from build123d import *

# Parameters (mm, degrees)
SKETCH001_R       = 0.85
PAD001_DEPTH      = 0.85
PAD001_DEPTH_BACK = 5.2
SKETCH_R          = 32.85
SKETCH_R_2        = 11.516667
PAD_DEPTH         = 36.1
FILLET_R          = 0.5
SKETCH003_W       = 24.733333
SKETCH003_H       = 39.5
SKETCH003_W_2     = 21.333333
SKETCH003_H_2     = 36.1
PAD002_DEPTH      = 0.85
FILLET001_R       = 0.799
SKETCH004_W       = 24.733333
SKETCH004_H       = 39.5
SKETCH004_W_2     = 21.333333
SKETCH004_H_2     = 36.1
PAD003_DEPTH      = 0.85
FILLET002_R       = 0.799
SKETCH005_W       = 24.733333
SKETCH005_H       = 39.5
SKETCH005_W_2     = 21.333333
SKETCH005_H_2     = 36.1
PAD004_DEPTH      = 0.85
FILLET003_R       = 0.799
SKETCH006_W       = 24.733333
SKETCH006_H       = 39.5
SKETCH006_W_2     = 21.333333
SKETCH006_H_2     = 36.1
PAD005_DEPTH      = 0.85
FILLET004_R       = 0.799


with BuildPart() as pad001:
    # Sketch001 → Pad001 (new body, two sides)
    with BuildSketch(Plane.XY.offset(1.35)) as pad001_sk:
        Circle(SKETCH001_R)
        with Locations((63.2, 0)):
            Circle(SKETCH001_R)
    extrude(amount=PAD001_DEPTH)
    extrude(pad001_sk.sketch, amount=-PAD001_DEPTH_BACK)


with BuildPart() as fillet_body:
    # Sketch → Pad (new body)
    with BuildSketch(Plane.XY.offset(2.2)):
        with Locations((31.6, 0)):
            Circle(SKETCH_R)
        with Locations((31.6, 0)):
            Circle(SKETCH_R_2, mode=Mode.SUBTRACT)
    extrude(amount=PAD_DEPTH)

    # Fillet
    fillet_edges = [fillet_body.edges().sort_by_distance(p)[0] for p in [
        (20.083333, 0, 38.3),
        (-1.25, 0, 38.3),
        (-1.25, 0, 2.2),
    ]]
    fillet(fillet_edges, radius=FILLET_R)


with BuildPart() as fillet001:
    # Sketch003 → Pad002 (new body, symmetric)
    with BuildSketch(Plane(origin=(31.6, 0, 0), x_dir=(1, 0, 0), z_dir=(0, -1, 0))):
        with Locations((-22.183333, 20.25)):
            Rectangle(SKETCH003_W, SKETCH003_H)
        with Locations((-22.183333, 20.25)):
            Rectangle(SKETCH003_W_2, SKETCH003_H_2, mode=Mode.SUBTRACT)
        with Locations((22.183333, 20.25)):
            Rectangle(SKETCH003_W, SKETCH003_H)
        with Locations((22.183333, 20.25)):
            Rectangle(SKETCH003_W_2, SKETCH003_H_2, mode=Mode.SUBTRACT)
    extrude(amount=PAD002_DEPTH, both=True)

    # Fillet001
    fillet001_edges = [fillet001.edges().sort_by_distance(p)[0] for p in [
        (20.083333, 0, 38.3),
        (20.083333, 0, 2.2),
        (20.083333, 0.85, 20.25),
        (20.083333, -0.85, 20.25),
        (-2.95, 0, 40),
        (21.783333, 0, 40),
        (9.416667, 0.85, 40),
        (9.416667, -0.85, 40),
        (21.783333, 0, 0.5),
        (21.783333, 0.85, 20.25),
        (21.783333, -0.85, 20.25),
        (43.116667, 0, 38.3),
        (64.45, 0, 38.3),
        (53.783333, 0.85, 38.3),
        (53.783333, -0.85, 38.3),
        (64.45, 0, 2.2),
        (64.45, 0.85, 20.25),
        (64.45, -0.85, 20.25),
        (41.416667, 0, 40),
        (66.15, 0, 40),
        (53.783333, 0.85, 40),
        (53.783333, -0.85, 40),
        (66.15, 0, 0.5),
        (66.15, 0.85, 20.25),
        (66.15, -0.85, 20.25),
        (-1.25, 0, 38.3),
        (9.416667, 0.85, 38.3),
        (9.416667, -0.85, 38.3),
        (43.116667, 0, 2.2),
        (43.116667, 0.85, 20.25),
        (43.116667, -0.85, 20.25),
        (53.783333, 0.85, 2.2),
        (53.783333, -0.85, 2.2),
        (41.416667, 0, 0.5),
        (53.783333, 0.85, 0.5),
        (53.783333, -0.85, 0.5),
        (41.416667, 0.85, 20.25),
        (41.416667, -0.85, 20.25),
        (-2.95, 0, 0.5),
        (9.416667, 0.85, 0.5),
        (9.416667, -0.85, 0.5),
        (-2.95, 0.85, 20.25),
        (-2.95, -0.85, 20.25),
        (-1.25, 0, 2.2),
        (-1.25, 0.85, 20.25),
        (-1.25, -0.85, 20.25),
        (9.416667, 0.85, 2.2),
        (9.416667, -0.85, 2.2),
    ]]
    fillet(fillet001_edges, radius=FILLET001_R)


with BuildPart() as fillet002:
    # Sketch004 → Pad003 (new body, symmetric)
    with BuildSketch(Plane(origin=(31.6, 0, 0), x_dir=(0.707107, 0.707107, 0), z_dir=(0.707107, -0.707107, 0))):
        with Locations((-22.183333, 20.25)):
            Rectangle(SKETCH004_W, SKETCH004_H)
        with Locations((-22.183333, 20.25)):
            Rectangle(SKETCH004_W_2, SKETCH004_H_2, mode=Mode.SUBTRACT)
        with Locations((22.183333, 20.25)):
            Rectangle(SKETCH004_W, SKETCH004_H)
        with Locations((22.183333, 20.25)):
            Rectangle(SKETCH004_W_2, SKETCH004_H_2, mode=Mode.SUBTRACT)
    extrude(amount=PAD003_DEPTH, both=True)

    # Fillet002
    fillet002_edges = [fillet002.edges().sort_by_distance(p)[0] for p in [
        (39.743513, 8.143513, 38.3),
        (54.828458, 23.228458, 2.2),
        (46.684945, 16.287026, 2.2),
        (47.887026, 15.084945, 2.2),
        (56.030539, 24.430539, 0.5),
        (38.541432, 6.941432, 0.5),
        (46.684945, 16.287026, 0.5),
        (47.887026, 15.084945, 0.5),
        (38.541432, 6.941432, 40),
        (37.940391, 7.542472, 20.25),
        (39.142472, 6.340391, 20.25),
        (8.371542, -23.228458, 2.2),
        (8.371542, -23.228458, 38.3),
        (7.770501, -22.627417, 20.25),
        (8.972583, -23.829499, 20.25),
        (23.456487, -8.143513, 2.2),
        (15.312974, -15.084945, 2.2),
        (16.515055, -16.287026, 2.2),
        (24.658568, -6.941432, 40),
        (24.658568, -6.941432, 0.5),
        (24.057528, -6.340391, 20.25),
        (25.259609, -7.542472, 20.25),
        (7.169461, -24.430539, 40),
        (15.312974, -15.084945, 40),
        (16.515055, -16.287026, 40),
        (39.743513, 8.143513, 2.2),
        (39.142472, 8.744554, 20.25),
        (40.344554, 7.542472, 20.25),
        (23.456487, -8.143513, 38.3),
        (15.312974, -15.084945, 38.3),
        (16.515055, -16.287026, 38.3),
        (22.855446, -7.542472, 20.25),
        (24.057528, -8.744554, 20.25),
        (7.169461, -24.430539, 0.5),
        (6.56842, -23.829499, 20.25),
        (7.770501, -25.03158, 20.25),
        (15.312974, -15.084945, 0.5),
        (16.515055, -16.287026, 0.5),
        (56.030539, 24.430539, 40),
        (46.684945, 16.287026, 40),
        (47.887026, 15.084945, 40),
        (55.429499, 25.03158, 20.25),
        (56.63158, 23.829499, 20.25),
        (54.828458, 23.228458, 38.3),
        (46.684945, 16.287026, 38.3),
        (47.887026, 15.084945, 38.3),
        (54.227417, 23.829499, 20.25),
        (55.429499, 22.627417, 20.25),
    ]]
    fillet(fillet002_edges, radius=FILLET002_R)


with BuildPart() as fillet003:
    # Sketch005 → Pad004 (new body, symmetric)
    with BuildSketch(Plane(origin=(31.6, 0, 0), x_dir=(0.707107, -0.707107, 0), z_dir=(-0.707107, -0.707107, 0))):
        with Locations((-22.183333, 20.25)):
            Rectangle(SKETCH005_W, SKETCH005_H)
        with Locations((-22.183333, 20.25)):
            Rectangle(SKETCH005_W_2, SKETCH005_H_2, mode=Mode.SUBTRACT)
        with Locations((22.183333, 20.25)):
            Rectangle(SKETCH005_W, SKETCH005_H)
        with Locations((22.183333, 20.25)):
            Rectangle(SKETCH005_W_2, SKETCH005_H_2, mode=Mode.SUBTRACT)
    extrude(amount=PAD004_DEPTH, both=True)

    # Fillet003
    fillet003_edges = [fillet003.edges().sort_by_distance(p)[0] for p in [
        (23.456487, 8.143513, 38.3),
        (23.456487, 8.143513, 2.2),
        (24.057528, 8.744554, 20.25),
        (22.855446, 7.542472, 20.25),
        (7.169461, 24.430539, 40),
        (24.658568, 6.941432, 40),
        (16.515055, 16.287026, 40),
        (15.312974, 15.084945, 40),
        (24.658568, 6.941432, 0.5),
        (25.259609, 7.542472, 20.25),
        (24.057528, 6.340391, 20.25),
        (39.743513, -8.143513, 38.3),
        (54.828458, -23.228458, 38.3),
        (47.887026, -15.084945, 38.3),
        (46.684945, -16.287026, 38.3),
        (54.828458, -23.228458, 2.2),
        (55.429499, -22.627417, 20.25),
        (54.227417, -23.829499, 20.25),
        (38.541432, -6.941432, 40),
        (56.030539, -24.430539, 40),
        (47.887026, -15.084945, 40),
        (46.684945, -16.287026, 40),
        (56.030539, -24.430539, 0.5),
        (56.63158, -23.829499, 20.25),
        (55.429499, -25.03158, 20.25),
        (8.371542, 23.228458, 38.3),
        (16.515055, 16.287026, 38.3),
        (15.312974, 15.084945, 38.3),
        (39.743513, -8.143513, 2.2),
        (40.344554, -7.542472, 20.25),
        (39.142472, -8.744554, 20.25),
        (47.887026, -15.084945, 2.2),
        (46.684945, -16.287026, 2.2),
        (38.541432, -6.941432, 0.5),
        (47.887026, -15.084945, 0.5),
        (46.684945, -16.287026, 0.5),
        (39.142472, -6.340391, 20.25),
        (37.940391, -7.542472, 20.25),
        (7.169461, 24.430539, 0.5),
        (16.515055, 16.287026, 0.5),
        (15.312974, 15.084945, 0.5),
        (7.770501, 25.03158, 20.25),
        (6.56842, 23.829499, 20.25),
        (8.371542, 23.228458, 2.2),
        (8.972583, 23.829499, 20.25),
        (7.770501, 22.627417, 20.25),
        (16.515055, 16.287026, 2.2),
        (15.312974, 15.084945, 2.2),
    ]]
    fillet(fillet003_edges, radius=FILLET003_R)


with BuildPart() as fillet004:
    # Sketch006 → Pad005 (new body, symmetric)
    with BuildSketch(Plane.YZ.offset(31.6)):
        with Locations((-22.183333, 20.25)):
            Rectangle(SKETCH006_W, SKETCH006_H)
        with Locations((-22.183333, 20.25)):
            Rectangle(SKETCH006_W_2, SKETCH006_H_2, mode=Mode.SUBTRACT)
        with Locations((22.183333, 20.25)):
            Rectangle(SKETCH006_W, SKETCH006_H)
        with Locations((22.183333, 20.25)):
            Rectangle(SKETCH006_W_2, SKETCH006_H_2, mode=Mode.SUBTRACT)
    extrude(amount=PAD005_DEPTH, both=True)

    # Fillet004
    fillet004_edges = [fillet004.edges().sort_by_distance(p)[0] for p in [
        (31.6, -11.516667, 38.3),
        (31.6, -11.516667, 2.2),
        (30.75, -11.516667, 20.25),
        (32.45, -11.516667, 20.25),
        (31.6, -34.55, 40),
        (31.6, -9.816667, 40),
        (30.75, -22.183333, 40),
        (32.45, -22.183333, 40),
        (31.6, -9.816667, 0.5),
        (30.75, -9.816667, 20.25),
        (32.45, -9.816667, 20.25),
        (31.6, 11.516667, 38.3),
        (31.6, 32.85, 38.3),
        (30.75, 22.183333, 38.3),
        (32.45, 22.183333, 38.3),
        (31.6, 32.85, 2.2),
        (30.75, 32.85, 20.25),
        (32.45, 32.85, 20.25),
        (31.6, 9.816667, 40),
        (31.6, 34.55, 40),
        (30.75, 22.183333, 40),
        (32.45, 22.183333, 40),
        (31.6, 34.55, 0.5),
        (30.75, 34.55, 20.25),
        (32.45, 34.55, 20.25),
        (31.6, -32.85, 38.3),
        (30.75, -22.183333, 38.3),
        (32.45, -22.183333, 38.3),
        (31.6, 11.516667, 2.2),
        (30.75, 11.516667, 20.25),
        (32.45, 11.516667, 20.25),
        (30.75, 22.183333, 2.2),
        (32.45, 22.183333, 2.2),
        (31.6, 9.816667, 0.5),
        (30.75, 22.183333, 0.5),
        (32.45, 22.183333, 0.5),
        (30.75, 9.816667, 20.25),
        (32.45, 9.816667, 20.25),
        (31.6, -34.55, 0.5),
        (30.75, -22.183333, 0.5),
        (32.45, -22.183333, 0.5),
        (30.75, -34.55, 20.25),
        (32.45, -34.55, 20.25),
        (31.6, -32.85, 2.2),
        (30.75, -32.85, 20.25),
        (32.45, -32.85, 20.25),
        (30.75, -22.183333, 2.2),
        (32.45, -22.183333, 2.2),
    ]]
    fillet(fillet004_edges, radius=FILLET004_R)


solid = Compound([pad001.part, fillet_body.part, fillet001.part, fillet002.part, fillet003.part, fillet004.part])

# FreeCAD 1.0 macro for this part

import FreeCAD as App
import Part
import Sketcher
from FreeCAD import Vector
Q = App.Units.Quantity


def edges_at(feature, points):
    """Names of the edges that pass closest to the given points."""
    edges = feature.Shape.Edges
    near = lambda p: min(range(len(edges)), key=lambda i: edges[i].distToShape(Part.Vertex(*p))[0])
    return sorted({f"Edge{near(p) + 1}" for p in points})

doc = App.newDocument("Part")
params = doc.addObject("Spreadsheet::Sheet", "Params")
for row, (alias, value) in enumerate([
    ("sketch1_diameter", "1.7 mm"),
    ("pad1_length", "0.85 mm"),
    ("pad1_length2", "5.2 mm"),
    ("sketch2_diameter", "65.7 mm"),
    ("pad2_length", "36.1 mm"),
    ("fillet_radius", "0.5 mm"),
    ("sketch3_height", "39.5 mm"),
    ("sketch3_height2", "36.1 mm"),
    ("pad3_length", "1.7 mm"),
    ("fillet2_radius", "0.799 mm"),
    ("sketch4_height", "39.5 mm"),
    ("sketch4_height2", "36.1 mm"),
    ("pad4_length", "1.7 mm"),
    ("fillet3_radius", "0.799 mm"),
    ("sketch5_height", "39.5 mm"),
    ("sketch5_height2", "36.1 mm"),
    ("pad5_length", "1.7 mm"),
    ("fillet4_radius", "0.799 mm"),
    ("sketch6_height", "39.5 mm"),
    ("sketch6_height2", "36.1 mm"),
    ("pad6_length", "1.7 mm"),
    ("fillet5_radius", "0.799 mm"),
], start=1):
    params.set(f"A{row}", alias)
    params.set(f"B{row}", "=" + value)
    params.setAlias(f"B{row}", alias)

body = doc.addObject("PartDesign::Body", "Body")
body.AllowCompound = True

# Sketch on XY plane
sketch1 = body.newObject("Sketcher::SketchObject", "Sketch")
sketch1.AttachmentSupport = (doc.getObject("XY_Plane"), [""])
sketch1.MapMode = "FlatFace"
sketch1.AttachmentOffset = App.Placement(Vector(0, 0, 1.35), App.Rotation())
sketch1.addGeometry(Part.Circle(Vector(0, 0, 0), Vector(0, 0, 1), 0.8), False)
sketch1.addGeometry(Part.Circle(Vector(63.2, 0, 0), Vector(0, 0, 1), 0.8), False)
sketch1.addConstraint(Sketcher.Constraint("Coincident", 0, 3, -1, 1))
sketch1.addConstraint(Sketcher.Constraint("Equal", 0, 1))
sketch1.addConstraint(Sketcher.Constraint("PointOnObject", 1, 3, -1))
sketch1.addConstraint(Sketcher.Constraint("Diameter", 0, Q("1.7 mm")))
sketch1.addConstraint(Sketcher.Constraint("DistanceX", -1, 1, 1, 3, Q("63.2 mm")))
sketch1.setExpression("Constraints[3]", "Params.sketch1_diameter")
pad1 = body.newObject("PartDesign::Pad", "Pad")
pad1.Profile = sketch1
pad1.Type = "TwoLengths"
pad1.setExpression("Length", "Params.pad1_length")
pad1.setExpression("Length2", "Params.pad1_length2")
body2 = doc.addObject("PartDesign::Body", "Body001")

# Sketch on XY plane
sketch2 = body2.newObject("Sketcher::SketchObject", "Sketch001")
sketch2.AttachmentSupport = (doc.getObject("XY_Plane001"), [""])
sketch2.MapMode = "FlatFace"
sketch2.AttachmentOffset = App.Placement(Vector(0, 0, 2.2), App.Rotation())
sketch2.addGeometry(Part.Circle(Vector(32, 0, 0), Vector(0, 0, 1), 33), False)
sketch2.addGeometry(Part.Circle(Vector(32, 0, 0), Vector(0, 0, 1), 12), False)
sketch2.addConstraint(Sketcher.Constraint("Coincident", 1, 3, 0, 3))
sketch2.addConstraint(Sketcher.Constraint("PointOnObject", 0, 3, -1))
sketch2.addConstraint(Sketcher.Constraint("Diameter", 0, Q("65.7 mm")))
sketch2.addConstraint(Sketcher.Constraint("DistanceX", -1, 1, 0, 3, Q("31.6 mm")))
sketch2.addConstraint(Sketcher.Constraint("Diameter", 1, Q("23.033334 mm")))
sketch2.setExpression("Constraints[2]", "Params.sketch2_diameter")
pad2 = body2.newObject("PartDesign::Pad", "Pad001")
pad2.Profile = sketch2
pad2.setExpression("Length", "Params.pad2_length")
doc.recompute()

fillet = body2.newObject("PartDesign::Fillet", "Fillet")
fillet.Base = (pad2, edges_at(pad2, [(20.083, 0, 38.3), (-1.25, 0, 38.3), (-1.25, 0, 2.2)]))
fillet.setExpression("Radius", "Params.fillet_radius")
body3 = doc.addObject("PartDesign::Body", "Body002")
body3.AllowCompound = True

# Sketch on XZ plane
sketch3 = body3.newObject("Sketcher::SketchObject", "Sketch002")
sketch3.AttachmentSupport = (doc.getObject("XZ_Plane002"), [""])
sketch3.MapMode = "FlatFace"
sketch3.addGeometry(Part.LineSegment(Vector(-3, 40, 0), Vector(-3, 0, 0)), False)
sketch3.addGeometry(Part.LineSegment(Vector(-3, 0, 0), Vector(22, 0, 0)), False)
sketch3.addGeometry(Part.LineSegment(Vector(22, 0, 0), Vector(22, 40, 0)), False)
sketch3.addGeometry(Part.LineSegment(Vector(22, 40, 0), Vector(-3, 40, 0)), False)
sketch3.addGeometry(Part.LineSegment(Vector(20, 2, 0), Vector(-1, 2, 0)), False)
sketch3.addGeometry(Part.LineSegment(Vector(-1, 2, 0), Vector(-1, 38, 0)), False)
sketch3.addGeometry(Part.LineSegment(Vector(-1, 38, 0), Vector(20, 38, 0)), False)
sketch3.addGeometry(Part.LineSegment(Vector(20, 38, 0), Vector(20, 2, 0)), False)
sketch3.addGeometry(Part.LineSegment(Vector(41, 40, 0), Vector(41, 0, 0)), False)
sketch3.addGeometry(Part.LineSegment(Vector(41, 0, 0), Vector(66, 0, 0)), False)
sketch3.addGeometry(Part.LineSegment(Vector(66, 0, 0), Vector(66, 40, 0)), False)
sketch3.addGeometry(Part.LineSegment(Vector(66, 40, 0), Vector(41, 40, 0)), False)
sketch3.addGeometry(Part.LineSegment(Vector(64, 2, 0), Vector(43, 2, 0)), False)
sketch3.addGeometry(Part.LineSegment(Vector(43, 2, 0), Vector(43, 38, 0)), False)
sketch3.addGeometry(Part.LineSegment(Vector(43, 38, 0), Vector(64, 38, 0)), False)
sketch3.addGeometry(Part.LineSegment(Vector(64, 38, 0), Vector(64, 2, 0)), False)
sketch3.addConstraint(Sketcher.Constraint("Coincident", 0, 2, 1, 1))
sketch3.addConstraint(Sketcher.Constraint("Coincident", 1, 2, 2, 1))
sketch3.addConstraint(Sketcher.Constraint("Coincident", 2, 2, 3, 1))
sketch3.addConstraint(Sketcher.Constraint("Coincident", 3, 2, 0, 1))
sketch3.addConstraint(Sketcher.Constraint("Coincident", 4, 2, 5, 1))
sketch3.addConstraint(Sketcher.Constraint("Coincident", 5, 2, 6, 1))
sketch3.addConstraint(Sketcher.Constraint("Coincident", 6, 2, 7, 1))
sketch3.addConstraint(Sketcher.Constraint("Coincident", 7, 2, 4, 1))
sketch3.addConstraint(Sketcher.Constraint("Coincident", 8, 2, 9, 1))
sketch3.addConstraint(Sketcher.Constraint("Coincident", 9, 2, 10, 1))
sketch3.addConstraint(Sketcher.Constraint("Coincident", 10, 2, 11, 1))
sketch3.addConstraint(Sketcher.Constraint("Coincident", 11, 2, 8, 1))
sketch3.addConstraint(Sketcher.Constraint("Coincident", 12, 2, 13, 1))
sketch3.addConstraint(Sketcher.Constraint("Coincident", 13, 2, 14, 1))
sketch3.addConstraint(Sketcher.Constraint("Coincident", 14, 2, 15, 1))
sketch3.addConstraint(Sketcher.Constraint("Coincident", 15, 2, 12, 1))
sketch3.addConstraint(Sketcher.Constraint("Vertical", 0))
sketch3.addConstraint(Sketcher.Constraint("Horizontal", 1))
sketch3.addConstraint(Sketcher.Constraint("Vertical", 2))
sketch3.addConstraint(Sketcher.Constraint("Horizontal", 3))
sketch3.addConstraint(Sketcher.Constraint("Horizontal", 4))
sketch3.addConstraint(Sketcher.Constraint("Vertical", 5))
sketch3.addConstraint(Sketcher.Constraint("Horizontal", 6))
sketch3.addConstraint(Sketcher.Constraint("Vertical", 7))
sketch3.addConstraint(Sketcher.Constraint("Vertical", 8))
sketch3.addConstraint(Sketcher.Constraint("Horizontal", 9))
sketch3.addConstraint(Sketcher.Constraint("Vertical", 10))
sketch3.addConstraint(Sketcher.Constraint("Horizontal", 11))
sketch3.addConstraint(Sketcher.Constraint("Horizontal", 12))
sketch3.addConstraint(Sketcher.Constraint("Vertical", 13))
sketch3.addConstraint(Sketcher.Constraint("Horizontal", 14))
sketch3.addConstraint(Sketcher.Constraint("Vertical", 15))
sketch3.addConstraint(Sketcher.Constraint("Horizontal", 1, 2, 8, 2))
sketch3.addConstraint(Sketcher.Constraint("Horizontal", 3, 2, 10, 2))
sketch3.addConstraint(Sketcher.Constraint("Horizontal", 7, 2, 12, 2))
sketch3.addConstraint(Sketcher.Constraint("Horizontal", 6, 2, 13, 2))
sketch3.addConstraint(Sketcher.Constraint("Equal", 3, 9))
sketch3.addConstraint(Sketcher.Constraint("Equal", 6, 12))
sketch3.addConstraint(Sketcher.Constraint("DistanceY", 0, 2, 0, 1, Q("39.5 mm")))
sketch3.addConstraint(Sketcher.Constraint("DistanceY", 5, 1, 5, 2, Q("36.1 mm")))
sketch3.addConstraint(Sketcher.Constraint("DistanceY", -1, 1, 2, 2, Q("40 mm")))
sketch3.addConstraint(Sketcher.Constraint("DistanceY", -1, 1, 4, 2, Q("2.2 mm")))
sketch3.addConstraint(Sketcher.Constraint("DistanceX", 0, 2, 4, 2, Q("1.7 mm")))
sketch3.addConstraint(Sketcher.Constraint("DistanceX", 6, 2, 2, 2, Q("1.7 mm")))
sketch3.addConstraint(Sketcher.Constraint("DistanceX", 8, 2, 12, 2, Q("1.7 mm")))
sketch3.addConstraint(Sketcher.Constraint("DistanceX", 0, 2, -1, 1, Q("2.95 mm")))
sketch3.addConstraint(Sketcher.Constraint("DistanceX", -1, 1, 9, 2, Q("66.15 mm")))
sketch3.addConstraint(Sketcher.Constraint("DistanceX", 1, 1, 1, 2, Q("24.733333 mm")))
sketch3.setExpression("Constraints[38]", "Params.sketch3_height")
sketch3.setExpression("Constraints[39]", "Params.sketch3_height2")
pad3 = body3.newObject("PartDesign::Pad", "Pad002")
pad3.Profile = sketch3
pad3.setExpression("Length", "Params.pad3_length")
pad3.Midplane = True
doc.recompute()

fillet2 = body3.newObject("PartDesign::Fillet", "Fillet001")
fillet2.Base = (pad3, ["Edge1"])
fillet2.UseAllEdges = True
fillet2.setExpression("Radius", "Params.fillet2_radius")
body4 = doc.addObject("PartDesign::Body", "Body003")
body4.AllowCompound = True

# Sketch on an angled plane
sketch4 = body4.newObject("Sketcher::SketchObject", "Sketch003")
sketch4.Placement = App.Placement(Vector(31.6, 0, 0), App.Rotation(Vector(0.707106781, 0.707106781, 0), Vector(0, 0, 0.999999999), Vector(0.707106781, -0.707106781, 0), "ZXY"))
sketch4.addGeometry(Part.LineSegment(Vector(-35, 40, 0), Vector(-35, 0, 0)), False)
sketch4.addGeometry(Part.LineSegment(Vector(-35, 0, 0), Vector(-10, 0, 0)), False)
sketch4.addGeometry(Part.LineSegment(Vector(-10, 0, 0), Vector(-10, 40, 0)), False)
sketch4.addGeometry(Part.LineSegment(Vector(-10, 40, 0), Vector(-35, 40, 0)), False)
sketch4.addGeometry(Part.LineSegment(Vector(-12, 2, 0), Vector(-33, 2, 0)), False)
sketch4.addGeometry(Part.LineSegment(Vector(-33, 2, 0), Vector(-33, 38, 0)), False)
sketch4.addGeometry(Part.LineSegment(Vector(-33, 38, 0), Vector(-12, 38, 0)), False)
sketch4.addGeometry(Part.LineSegment(Vector(-12, 38, 0), Vector(-12, 2, 0)), False)
sketch4.addGeometry(Part.LineSegment(Vector(10, 40, 0), Vector(10, 0, 0)), False)
sketch4.addGeometry(Part.LineSegment(Vector(10, 0, 0), Vector(35, 0, 0)), False)
sketch4.addGeometry(Part.LineSegment(Vector(35, 0, 0), Vector(35, 40, 0)), False)
sketch4.addGeometry(Part.LineSegment(Vector(35, 40, 0), Vector(10, 40, 0)), False)
sketch4.addGeometry(Part.LineSegment(Vector(33, 2, 0), Vector(12, 2, 0)), False)
sketch4.addGeometry(Part.LineSegment(Vector(12, 2, 0), Vector(12, 38, 0)), False)
sketch4.addGeometry(Part.LineSegment(Vector(12, 38, 0), Vector(33, 38, 0)), False)
sketch4.addGeometry(Part.LineSegment(Vector(33, 38, 0), Vector(33, 2, 0)), False)
sketch4.addConstraint(Sketcher.Constraint("Coincident", 0, 2, 1, 1))
sketch4.addConstraint(Sketcher.Constraint("Coincident", 1, 2, 2, 1))
sketch4.addConstraint(Sketcher.Constraint("Coincident", 2, 2, 3, 1))
sketch4.addConstraint(Sketcher.Constraint("Coincident", 3, 2, 0, 1))
sketch4.addConstraint(Sketcher.Constraint("Coincident", 4, 2, 5, 1))
sketch4.addConstraint(Sketcher.Constraint("Coincident", 5, 2, 6, 1))
sketch4.addConstraint(Sketcher.Constraint("Coincident", 6, 2, 7, 1))
sketch4.addConstraint(Sketcher.Constraint("Coincident", 7, 2, 4, 1))
sketch4.addConstraint(Sketcher.Constraint("Coincident", 8, 2, 9, 1))
sketch4.addConstraint(Sketcher.Constraint("Coincident", 9, 2, 10, 1))
sketch4.addConstraint(Sketcher.Constraint("Coincident", 10, 2, 11, 1))
sketch4.addConstraint(Sketcher.Constraint("Coincident", 11, 2, 8, 1))
sketch4.addConstraint(Sketcher.Constraint("Coincident", 12, 2, 13, 1))
sketch4.addConstraint(Sketcher.Constraint("Coincident", 13, 2, 14, 1))
sketch4.addConstraint(Sketcher.Constraint("Coincident", 14, 2, 15, 1))
sketch4.addConstraint(Sketcher.Constraint("Coincident", 15, 2, 12, 1))
sketch4.addConstraint(Sketcher.Constraint("Vertical", 0))
sketch4.addConstraint(Sketcher.Constraint("Horizontal", 1))
sketch4.addConstraint(Sketcher.Constraint("Vertical", 2))
sketch4.addConstraint(Sketcher.Constraint("Horizontal", 3))
sketch4.addConstraint(Sketcher.Constraint("Horizontal", 4))
sketch4.addConstraint(Sketcher.Constraint("Vertical", 5))
sketch4.addConstraint(Sketcher.Constraint("Horizontal", 6))
sketch4.addConstraint(Sketcher.Constraint("Vertical", 7))
sketch4.addConstraint(Sketcher.Constraint("Vertical", 8))
sketch4.addConstraint(Sketcher.Constraint("Horizontal", 9))
sketch4.addConstraint(Sketcher.Constraint("Vertical", 10))
sketch4.addConstraint(Sketcher.Constraint("Horizontal", 11))
sketch4.addConstraint(Sketcher.Constraint("Horizontal", 12))
sketch4.addConstraint(Sketcher.Constraint("Vertical", 13))
sketch4.addConstraint(Sketcher.Constraint("Horizontal", 14))
sketch4.addConstraint(Sketcher.Constraint("Vertical", 15))
sketch4.addConstraint(Sketcher.Constraint("Symmetric", 1, 2, 8, 2, -2))
sketch4.addConstraint(Sketcher.Constraint("Symmetric", 3, 2, 10, 2, -2))
sketch4.addConstraint(Sketcher.Constraint("Symmetric", 7, 2, 12, 2, -2))
sketch4.addConstraint(Sketcher.Constraint("Symmetric", 5, 2, 14, 2, -2))
sketch4.addConstraint(Sketcher.Constraint("DistanceY", 0, 2, 0, 1, Q("39.5 mm")))
sketch4.addConstraint(Sketcher.Constraint("DistanceY", 5, 1, 5, 2, Q("36.1 mm")))
sketch4.addConstraint(Sketcher.Constraint("DistanceY", -1, 1, 2, 2, Q("40 mm")))
sketch4.addConstraint(Sketcher.Constraint("DistanceY", -1, 1, 4, 2, Q("2.2 mm")))
sketch4.addConstraint(Sketcher.Constraint("DistanceX", 0, 2, 4, 2, Q("1.7 mm")))
sketch4.addConstraint(Sketcher.Constraint("DistanceX", 6, 2, 2, 2, Q("1.7 mm")))
sketch4.addConstraint(Sketcher.Constraint("DistanceX", 0, 2, -1, 1, Q("34.549999 mm")))
sketch4.addConstraint(Sketcher.Constraint("DistanceX", 1, 1, 1, 2, Q("24.733333 mm")))
sketch4.setExpression("Constraints[36]", "Params.sketch4_height")
sketch4.setExpression("Constraints[37]", "Params.sketch4_height2")
pad4 = body4.newObject("PartDesign::Pad", "Pad003")
pad4.Profile = sketch4
pad4.setExpression("Length", "Params.pad4_length")
pad4.Midplane = True
doc.recompute()

fillet3 = body4.newObject("PartDesign::Fillet", "Fillet002")
fillet3.Base = (pad4, ["Edge1"])
fillet3.UseAllEdges = True
fillet3.setExpression("Radius", "Params.fillet3_radius")
body5 = doc.addObject("PartDesign::Body", "Body004")
body5.AllowCompound = True

# Sketch on an angled plane
sketch5 = body5.newObject("Sketcher::SketchObject", "Sketch004")
sketch5.Placement = App.Placement(Vector(31.6, 0, 0), App.Rotation(Vector(0.707106781, -0.707106781, 0), Vector(0, 0, 0.999999999), Vector(-0.707106781, -0.707106781, 0), "ZXY"))
sketch5.addGeometry(Part.LineSegment(Vector(-35, 40, 0), Vector(-35, 0, 0)), False)
sketch5.addGeometry(Part.LineSegment(Vector(-35, 0, 0), Vector(-10, 0, 0)), False)
sketch5.addGeometry(Part.LineSegment(Vector(-10, 0, 0), Vector(-10, 40, 0)), False)
sketch5.addGeometry(Part.LineSegment(Vector(-10, 40, 0), Vector(-35, 40, 0)), False)
sketch5.addGeometry(Part.LineSegment(Vector(-12, 2, 0), Vector(-33, 2, 0)), False)
sketch5.addGeometry(Part.LineSegment(Vector(-33, 2, 0), Vector(-33, 38, 0)), False)
sketch5.addGeometry(Part.LineSegment(Vector(-33, 38, 0), Vector(-12, 38, 0)), False)
sketch5.addGeometry(Part.LineSegment(Vector(-12, 38, 0), Vector(-12, 2, 0)), False)
sketch5.addGeometry(Part.LineSegment(Vector(10, 40, 0), Vector(10, 0, 0)), False)
sketch5.addGeometry(Part.LineSegment(Vector(10, 0, 0), Vector(35, 0, 0)), False)
sketch5.addGeometry(Part.LineSegment(Vector(35, 0, 0), Vector(35, 40, 0)), False)
sketch5.addGeometry(Part.LineSegment(Vector(35, 40, 0), Vector(10, 40, 0)), False)
sketch5.addGeometry(Part.LineSegment(Vector(33, 2, 0), Vector(12, 2, 0)), False)
sketch5.addGeometry(Part.LineSegment(Vector(12, 2, 0), Vector(12, 38, 0)), False)
sketch5.addGeometry(Part.LineSegment(Vector(12, 38, 0), Vector(33, 38, 0)), False)
sketch5.addGeometry(Part.LineSegment(Vector(33, 38, 0), Vector(33, 2, 0)), False)
sketch5.addConstraint(Sketcher.Constraint("Coincident", 0, 2, 1, 1))
sketch5.addConstraint(Sketcher.Constraint("Coincident", 1, 2, 2, 1))
sketch5.addConstraint(Sketcher.Constraint("Coincident", 2, 2, 3, 1))
sketch5.addConstraint(Sketcher.Constraint("Coincident", 3, 2, 0, 1))
sketch5.addConstraint(Sketcher.Constraint("Coincident", 4, 2, 5, 1))
sketch5.addConstraint(Sketcher.Constraint("Coincident", 5, 2, 6, 1))
sketch5.addConstraint(Sketcher.Constraint("Coincident", 6, 2, 7, 1))
sketch5.addConstraint(Sketcher.Constraint("Coincident", 7, 2, 4, 1))
sketch5.addConstraint(Sketcher.Constraint("Coincident", 8, 2, 9, 1))
sketch5.addConstraint(Sketcher.Constraint("Coincident", 9, 2, 10, 1))
sketch5.addConstraint(Sketcher.Constraint("Coincident", 10, 2, 11, 1))
sketch5.addConstraint(Sketcher.Constraint("Coincident", 11, 2, 8, 1))
sketch5.addConstraint(Sketcher.Constraint("Coincident", 12, 2, 13, 1))
sketch5.addConstraint(Sketcher.Constraint("Coincident", 13, 2, 14, 1))
sketch5.addConstraint(Sketcher.Constraint("Coincident", 14, 2, 15, 1))
sketch5.addConstraint(Sketcher.Constraint("Coincident", 15, 2, 12, 1))
sketch5.addConstraint(Sketcher.Constraint("Vertical", 0))
sketch5.addConstraint(Sketcher.Constraint("Horizontal", 1))
sketch5.addConstraint(Sketcher.Constraint("Vertical", 2))
sketch5.addConstraint(Sketcher.Constraint("Horizontal", 3))
sketch5.addConstraint(Sketcher.Constraint("Horizontal", 4))
sketch5.addConstraint(Sketcher.Constraint("Vertical", 5))
sketch5.addConstraint(Sketcher.Constraint("Horizontal", 6))
sketch5.addConstraint(Sketcher.Constraint("Vertical", 7))
sketch5.addConstraint(Sketcher.Constraint("Vertical", 8))
sketch5.addConstraint(Sketcher.Constraint("Horizontal", 9))
sketch5.addConstraint(Sketcher.Constraint("Vertical", 10))
sketch5.addConstraint(Sketcher.Constraint("Horizontal", 11))
sketch5.addConstraint(Sketcher.Constraint("Horizontal", 12))
sketch5.addConstraint(Sketcher.Constraint("Vertical", 13))
sketch5.addConstraint(Sketcher.Constraint("Horizontal", 14))
sketch5.addConstraint(Sketcher.Constraint("Vertical", 15))
sketch5.addConstraint(Sketcher.Constraint("Symmetric", 1, 2, 8, 2, -2))
sketch5.addConstraint(Sketcher.Constraint("Symmetric", 3, 2, 10, 2, -2))
sketch5.addConstraint(Sketcher.Constraint("Symmetric", 7, 2, 12, 2, -2))
sketch5.addConstraint(Sketcher.Constraint("Symmetric", 5, 2, 14, 2, -2))
sketch5.addConstraint(Sketcher.Constraint("DistanceY", 0, 2, 0, 1, Q("39.5 mm")))
sketch5.addConstraint(Sketcher.Constraint("DistanceY", 5, 1, 5, 2, Q("36.1 mm")))
sketch5.addConstraint(Sketcher.Constraint("DistanceY", -1, 1, 2, 2, Q("40 mm")))
sketch5.addConstraint(Sketcher.Constraint("DistanceY", -1, 1, 4, 2, Q("2.2 mm")))
sketch5.addConstraint(Sketcher.Constraint("DistanceX", 0, 2, 4, 2, Q("1.7 mm")))
sketch5.addConstraint(Sketcher.Constraint("DistanceX", 6, 2, 2, 2, Q("1.7 mm")))
sketch5.addConstraint(Sketcher.Constraint("DistanceX", 0, 2, -1, 1, Q("34.549999 mm")))
sketch5.addConstraint(Sketcher.Constraint("DistanceX", 1, 1, 1, 2, Q("24.733333 mm")))
sketch5.setExpression("Constraints[36]", "Params.sketch5_height")
sketch5.setExpression("Constraints[37]", "Params.sketch5_height2")
pad5 = body5.newObject("PartDesign::Pad", "Pad004")
pad5.Profile = sketch5
pad5.setExpression("Length", "Params.pad5_length")
pad5.Midplane = True
doc.recompute()

fillet4 = body5.newObject("PartDesign::Fillet", "Fillet003")
fillet4.Base = (pad5, ["Edge1"])
fillet4.UseAllEdges = True
fillet4.setExpression("Radius", "Params.fillet4_radius")
body6 = doc.addObject("PartDesign::Body", "Body005")
body6.AllowCompound = True

# Sketch on YZ plane
sketch6 = body6.newObject("Sketcher::SketchObject", "Sketch005")
sketch6.AttachmentSupport = (doc.getObject("YZ_Plane005"), [""])
sketch6.MapMode = "FlatFace"
sketch6.AttachmentOffset = App.Placement(Vector(0, 0, 31.6), App.Rotation())
sketch6.addGeometry(Part.LineSegment(Vector(-35, 40, 0), Vector(-35, 0, 0)), False)
sketch6.addGeometry(Part.LineSegment(Vector(-35, 0, 0), Vector(-10, 0, 0)), False)
sketch6.addGeometry(Part.LineSegment(Vector(-10, 0, 0), Vector(-10, 40, 0)), False)
sketch6.addGeometry(Part.LineSegment(Vector(-10, 40, 0), Vector(-35, 40, 0)), False)
sketch6.addGeometry(Part.LineSegment(Vector(-12, 2, 0), Vector(-33, 2, 0)), False)
sketch6.addGeometry(Part.LineSegment(Vector(-33, 2, 0), Vector(-33, 38, 0)), False)
sketch6.addGeometry(Part.LineSegment(Vector(-33, 38, 0), Vector(-12, 38, 0)), False)
sketch6.addGeometry(Part.LineSegment(Vector(-12, 38, 0), Vector(-12, 2, 0)), False)
sketch6.addGeometry(Part.LineSegment(Vector(10, 40, 0), Vector(10, 0, 0)), False)
sketch6.addGeometry(Part.LineSegment(Vector(10, 0, 0), Vector(35, 0, 0)), False)
sketch6.addGeometry(Part.LineSegment(Vector(35, 0, 0), Vector(35, 40, 0)), False)
sketch6.addGeometry(Part.LineSegment(Vector(35, 40, 0), Vector(10, 40, 0)), False)
sketch6.addGeometry(Part.LineSegment(Vector(33, 2, 0), Vector(12, 2, 0)), False)
sketch6.addGeometry(Part.LineSegment(Vector(12, 2, 0), Vector(12, 38, 0)), False)
sketch6.addGeometry(Part.LineSegment(Vector(12, 38, 0), Vector(33, 38, 0)), False)
sketch6.addGeometry(Part.LineSegment(Vector(33, 38, 0), Vector(33, 2, 0)), False)
sketch6.addConstraint(Sketcher.Constraint("Coincident", 0, 2, 1, 1))
sketch6.addConstraint(Sketcher.Constraint("Coincident", 1, 2, 2, 1))
sketch6.addConstraint(Sketcher.Constraint("Coincident", 2, 2, 3, 1))
sketch6.addConstraint(Sketcher.Constraint("Coincident", 3, 2, 0, 1))
sketch6.addConstraint(Sketcher.Constraint("Coincident", 4, 2, 5, 1))
sketch6.addConstraint(Sketcher.Constraint("Coincident", 5, 2, 6, 1))
sketch6.addConstraint(Sketcher.Constraint("Coincident", 6, 2, 7, 1))
sketch6.addConstraint(Sketcher.Constraint("Coincident", 7, 2, 4, 1))
sketch6.addConstraint(Sketcher.Constraint("Coincident", 8, 2, 9, 1))
sketch6.addConstraint(Sketcher.Constraint("Coincident", 9, 2, 10, 1))
sketch6.addConstraint(Sketcher.Constraint("Coincident", 10, 2, 11, 1))
sketch6.addConstraint(Sketcher.Constraint("Coincident", 11, 2, 8, 1))
sketch6.addConstraint(Sketcher.Constraint("Coincident", 12, 2, 13, 1))
sketch6.addConstraint(Sketcher.Constraint("Coincident", 13, 2, 14, 1))
sketch6.addConstraint(Sketcher.Constraint("Coincident", 14, 2, 15, 1))
sketch6.addConstraint(Sketcher.Constraint("Coincident", 15, 2, 12, 1))
sketch6.addConstraint(Sketcher.Constraint("Vertical", 0))
sketch6.addConstraint(Sketcher.Constraint("Horizontal", 1))
sketch6.addConstraint(Sketcher.Constraint("Vertical", 2))
sketch6.addConstraint(Sketcher.Constraint("Horizontal", 3))
sketch6.addConstraint(Sketcher.Constraint("Horizontal", 4))
sketch6.addConstraint(Sketcher.Constraint("Vertical", 5))
sketch6.addConstraint(Sketcher.Constraint("Horizontal", 6))
sketch6.addConstraint(Sketcher.Constraint("Vertical", 7))
sketch6.addConstraint(Sketcher.Constraint("Vertical", 8))
sketch6.addConstraint(Sketcher.Constraint("Horizontal", 9))
sketch6.addConstraint(Sketcher.Constraint("Vertical", 10))
sketch6.addConstraint(Sketcher.Constraint("Horizontal", 11))
sketch6.addConstraint(Sketcher.Constraint("Horizontal", 12))
sketch6.addConstraint(Sketcher.Constraint("Vertical", 13))
sketch6.addConstraint(Sketcher.Constraint("Horizontal", 14))
sketch6.addConstraint(Sketcher.Constraint("Vertical", 15))
sketch6.addConstraint(Sketcher.Constraint("Symmetric", 1, 2, 8, 2, -2))
sketch6.addConstraint(Sketcher.Constraint("Symmetric", 3, 2, 10, 2, -2))
sketch6.addConstraint(Sketcher.Constraint("Symmetric", 7, 2, 12, 2, -2))
sketch6.addConstraint(Sketcher.Constraint("Symmetric", 5, 2, 14, 2, -2))
sketch6.addConstraint(Sketcher.Constraint("DistanceY", 0, 2, 0, 1, Q("39.5 mm")))
sketch6.addConstraint(Sketcher.Constraint("DistanceY", 5, 1, 5, 2, Q("36.1 mm")))
sketch6.addConstraint(Sketcher.Constraint("DistanceY", -1, 1, 2, 2, Q("40 mm")))
sketch6.addConstraint(Sketcher.Constraint("DistanceY", -1, 1, 4, 2, Q("2.2 mm")))
sketch6.addConstraint(Sketcher.Constraint("DistanceX", 0, 2, 4, 2, Q("1.7 mm")))
sketch6.addConstraint(Sketcher.Constraint("DistanceX", 6, 2, 2, 2, Q("1.7 mm")))
sketch6.addConstraint(Sketcher.Constraint("DistanceX", 0, 2, -1, 1, Q("34.549999 mm")))
sketch6.addConstraint(Sketcher.Constraint("DistanceX", 1, 1, 1, 2, Q("24.733333 mm")))
sketch6.setExpression("Constraints[36]", "Params.sketch6_height")
sketch6.setExpression("Constraints[37]", "Params.sketch6_height2")
pad6 = body6.newObject("PartDesign::Pad", "Pad005")
pad6.Profile = sketch6
pad6.setExpression("Length", "Params.pad6_length")
pad6.Midplane = True
doc.recompute()

fillet5 = body6.newObject("PartDesign::Fillet", "Fillet004")
fillet5.Base = (pad6, ["Edge1"])
fillet5.UseAllEdges = True
fillet5.setExpression("Radius", "Params.fillet5_radius")

doc.recompute()
